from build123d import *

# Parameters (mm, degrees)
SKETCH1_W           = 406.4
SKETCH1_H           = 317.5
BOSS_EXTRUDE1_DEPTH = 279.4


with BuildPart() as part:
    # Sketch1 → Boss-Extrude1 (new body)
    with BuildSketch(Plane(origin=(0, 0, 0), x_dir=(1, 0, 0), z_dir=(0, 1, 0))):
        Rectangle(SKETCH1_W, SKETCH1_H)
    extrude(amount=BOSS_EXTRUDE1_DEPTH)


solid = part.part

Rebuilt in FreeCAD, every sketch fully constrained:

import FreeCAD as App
import Part
import Sketcher
Q = App.Units.Quantity


def add_polygon(sketch, points):
    """Adds a closed chain of lines whose ends are joined by coincident constraints."""
    first, n = sketch.GeometryCount, len(points)
    for a, b in zip(points, points[1:] + points[:1]):
        sketch.addGeometry(Part.LineSegment(App.Vector(*a, 0), App.Vector(*b, 0)), False)
    for i in range(n):
        sketch.addConstraint(Sketcher.Constraint("Coincident", first + i, 2, first + (i + 1) % n, 1))

doc = App.newDocument("Part")
body = doc.addObject("PartDesign::Body", "Body")

sketch1 = doc.addObject("Sketcher::SketchObject", "Sketch")
body.addObject(sketch1)
sketch1.AttachmentSupport = (doc.XZ_Plane, [""])
sketch1.MapMode = "FlatFace"
add_polygon(sketch1, [(-203, -159), (-203, 159), (203, 159), (203, -159)])
sketch1.addConstraint(Sketcher.Constraint("Vertical", 0))
sketch1.addConstraint(Sketcher.Constraint("Horizontal", 1))
sketch1.addConstraint(Sketcher.Constraint("Vertical", 2))
sketch1.addConstraint(Sketcher.Constraint("Horizontal", 3))
sketch1.addConstraint(Sketcher.Constraint("Symmetric", 0, 2, 2, 2, -1, 1))
sketch1.addConstraint(Sketcher.Constraint("DistanceX", 1, 1, 1, 2, Q("16 in")))
sketch1.addConstraint(Sketcher.Constraint("DistanceY", 0, 1, 0, 2, Q("12.5 in")))
pad1 = doc.addObject("PartDesign::Pad", "Pad")
body.addObject(pad1)
pad1.Profile = sketch1
pad1.Length = Q("11 in")
pad1.Reversed = True

doc.recompute()
